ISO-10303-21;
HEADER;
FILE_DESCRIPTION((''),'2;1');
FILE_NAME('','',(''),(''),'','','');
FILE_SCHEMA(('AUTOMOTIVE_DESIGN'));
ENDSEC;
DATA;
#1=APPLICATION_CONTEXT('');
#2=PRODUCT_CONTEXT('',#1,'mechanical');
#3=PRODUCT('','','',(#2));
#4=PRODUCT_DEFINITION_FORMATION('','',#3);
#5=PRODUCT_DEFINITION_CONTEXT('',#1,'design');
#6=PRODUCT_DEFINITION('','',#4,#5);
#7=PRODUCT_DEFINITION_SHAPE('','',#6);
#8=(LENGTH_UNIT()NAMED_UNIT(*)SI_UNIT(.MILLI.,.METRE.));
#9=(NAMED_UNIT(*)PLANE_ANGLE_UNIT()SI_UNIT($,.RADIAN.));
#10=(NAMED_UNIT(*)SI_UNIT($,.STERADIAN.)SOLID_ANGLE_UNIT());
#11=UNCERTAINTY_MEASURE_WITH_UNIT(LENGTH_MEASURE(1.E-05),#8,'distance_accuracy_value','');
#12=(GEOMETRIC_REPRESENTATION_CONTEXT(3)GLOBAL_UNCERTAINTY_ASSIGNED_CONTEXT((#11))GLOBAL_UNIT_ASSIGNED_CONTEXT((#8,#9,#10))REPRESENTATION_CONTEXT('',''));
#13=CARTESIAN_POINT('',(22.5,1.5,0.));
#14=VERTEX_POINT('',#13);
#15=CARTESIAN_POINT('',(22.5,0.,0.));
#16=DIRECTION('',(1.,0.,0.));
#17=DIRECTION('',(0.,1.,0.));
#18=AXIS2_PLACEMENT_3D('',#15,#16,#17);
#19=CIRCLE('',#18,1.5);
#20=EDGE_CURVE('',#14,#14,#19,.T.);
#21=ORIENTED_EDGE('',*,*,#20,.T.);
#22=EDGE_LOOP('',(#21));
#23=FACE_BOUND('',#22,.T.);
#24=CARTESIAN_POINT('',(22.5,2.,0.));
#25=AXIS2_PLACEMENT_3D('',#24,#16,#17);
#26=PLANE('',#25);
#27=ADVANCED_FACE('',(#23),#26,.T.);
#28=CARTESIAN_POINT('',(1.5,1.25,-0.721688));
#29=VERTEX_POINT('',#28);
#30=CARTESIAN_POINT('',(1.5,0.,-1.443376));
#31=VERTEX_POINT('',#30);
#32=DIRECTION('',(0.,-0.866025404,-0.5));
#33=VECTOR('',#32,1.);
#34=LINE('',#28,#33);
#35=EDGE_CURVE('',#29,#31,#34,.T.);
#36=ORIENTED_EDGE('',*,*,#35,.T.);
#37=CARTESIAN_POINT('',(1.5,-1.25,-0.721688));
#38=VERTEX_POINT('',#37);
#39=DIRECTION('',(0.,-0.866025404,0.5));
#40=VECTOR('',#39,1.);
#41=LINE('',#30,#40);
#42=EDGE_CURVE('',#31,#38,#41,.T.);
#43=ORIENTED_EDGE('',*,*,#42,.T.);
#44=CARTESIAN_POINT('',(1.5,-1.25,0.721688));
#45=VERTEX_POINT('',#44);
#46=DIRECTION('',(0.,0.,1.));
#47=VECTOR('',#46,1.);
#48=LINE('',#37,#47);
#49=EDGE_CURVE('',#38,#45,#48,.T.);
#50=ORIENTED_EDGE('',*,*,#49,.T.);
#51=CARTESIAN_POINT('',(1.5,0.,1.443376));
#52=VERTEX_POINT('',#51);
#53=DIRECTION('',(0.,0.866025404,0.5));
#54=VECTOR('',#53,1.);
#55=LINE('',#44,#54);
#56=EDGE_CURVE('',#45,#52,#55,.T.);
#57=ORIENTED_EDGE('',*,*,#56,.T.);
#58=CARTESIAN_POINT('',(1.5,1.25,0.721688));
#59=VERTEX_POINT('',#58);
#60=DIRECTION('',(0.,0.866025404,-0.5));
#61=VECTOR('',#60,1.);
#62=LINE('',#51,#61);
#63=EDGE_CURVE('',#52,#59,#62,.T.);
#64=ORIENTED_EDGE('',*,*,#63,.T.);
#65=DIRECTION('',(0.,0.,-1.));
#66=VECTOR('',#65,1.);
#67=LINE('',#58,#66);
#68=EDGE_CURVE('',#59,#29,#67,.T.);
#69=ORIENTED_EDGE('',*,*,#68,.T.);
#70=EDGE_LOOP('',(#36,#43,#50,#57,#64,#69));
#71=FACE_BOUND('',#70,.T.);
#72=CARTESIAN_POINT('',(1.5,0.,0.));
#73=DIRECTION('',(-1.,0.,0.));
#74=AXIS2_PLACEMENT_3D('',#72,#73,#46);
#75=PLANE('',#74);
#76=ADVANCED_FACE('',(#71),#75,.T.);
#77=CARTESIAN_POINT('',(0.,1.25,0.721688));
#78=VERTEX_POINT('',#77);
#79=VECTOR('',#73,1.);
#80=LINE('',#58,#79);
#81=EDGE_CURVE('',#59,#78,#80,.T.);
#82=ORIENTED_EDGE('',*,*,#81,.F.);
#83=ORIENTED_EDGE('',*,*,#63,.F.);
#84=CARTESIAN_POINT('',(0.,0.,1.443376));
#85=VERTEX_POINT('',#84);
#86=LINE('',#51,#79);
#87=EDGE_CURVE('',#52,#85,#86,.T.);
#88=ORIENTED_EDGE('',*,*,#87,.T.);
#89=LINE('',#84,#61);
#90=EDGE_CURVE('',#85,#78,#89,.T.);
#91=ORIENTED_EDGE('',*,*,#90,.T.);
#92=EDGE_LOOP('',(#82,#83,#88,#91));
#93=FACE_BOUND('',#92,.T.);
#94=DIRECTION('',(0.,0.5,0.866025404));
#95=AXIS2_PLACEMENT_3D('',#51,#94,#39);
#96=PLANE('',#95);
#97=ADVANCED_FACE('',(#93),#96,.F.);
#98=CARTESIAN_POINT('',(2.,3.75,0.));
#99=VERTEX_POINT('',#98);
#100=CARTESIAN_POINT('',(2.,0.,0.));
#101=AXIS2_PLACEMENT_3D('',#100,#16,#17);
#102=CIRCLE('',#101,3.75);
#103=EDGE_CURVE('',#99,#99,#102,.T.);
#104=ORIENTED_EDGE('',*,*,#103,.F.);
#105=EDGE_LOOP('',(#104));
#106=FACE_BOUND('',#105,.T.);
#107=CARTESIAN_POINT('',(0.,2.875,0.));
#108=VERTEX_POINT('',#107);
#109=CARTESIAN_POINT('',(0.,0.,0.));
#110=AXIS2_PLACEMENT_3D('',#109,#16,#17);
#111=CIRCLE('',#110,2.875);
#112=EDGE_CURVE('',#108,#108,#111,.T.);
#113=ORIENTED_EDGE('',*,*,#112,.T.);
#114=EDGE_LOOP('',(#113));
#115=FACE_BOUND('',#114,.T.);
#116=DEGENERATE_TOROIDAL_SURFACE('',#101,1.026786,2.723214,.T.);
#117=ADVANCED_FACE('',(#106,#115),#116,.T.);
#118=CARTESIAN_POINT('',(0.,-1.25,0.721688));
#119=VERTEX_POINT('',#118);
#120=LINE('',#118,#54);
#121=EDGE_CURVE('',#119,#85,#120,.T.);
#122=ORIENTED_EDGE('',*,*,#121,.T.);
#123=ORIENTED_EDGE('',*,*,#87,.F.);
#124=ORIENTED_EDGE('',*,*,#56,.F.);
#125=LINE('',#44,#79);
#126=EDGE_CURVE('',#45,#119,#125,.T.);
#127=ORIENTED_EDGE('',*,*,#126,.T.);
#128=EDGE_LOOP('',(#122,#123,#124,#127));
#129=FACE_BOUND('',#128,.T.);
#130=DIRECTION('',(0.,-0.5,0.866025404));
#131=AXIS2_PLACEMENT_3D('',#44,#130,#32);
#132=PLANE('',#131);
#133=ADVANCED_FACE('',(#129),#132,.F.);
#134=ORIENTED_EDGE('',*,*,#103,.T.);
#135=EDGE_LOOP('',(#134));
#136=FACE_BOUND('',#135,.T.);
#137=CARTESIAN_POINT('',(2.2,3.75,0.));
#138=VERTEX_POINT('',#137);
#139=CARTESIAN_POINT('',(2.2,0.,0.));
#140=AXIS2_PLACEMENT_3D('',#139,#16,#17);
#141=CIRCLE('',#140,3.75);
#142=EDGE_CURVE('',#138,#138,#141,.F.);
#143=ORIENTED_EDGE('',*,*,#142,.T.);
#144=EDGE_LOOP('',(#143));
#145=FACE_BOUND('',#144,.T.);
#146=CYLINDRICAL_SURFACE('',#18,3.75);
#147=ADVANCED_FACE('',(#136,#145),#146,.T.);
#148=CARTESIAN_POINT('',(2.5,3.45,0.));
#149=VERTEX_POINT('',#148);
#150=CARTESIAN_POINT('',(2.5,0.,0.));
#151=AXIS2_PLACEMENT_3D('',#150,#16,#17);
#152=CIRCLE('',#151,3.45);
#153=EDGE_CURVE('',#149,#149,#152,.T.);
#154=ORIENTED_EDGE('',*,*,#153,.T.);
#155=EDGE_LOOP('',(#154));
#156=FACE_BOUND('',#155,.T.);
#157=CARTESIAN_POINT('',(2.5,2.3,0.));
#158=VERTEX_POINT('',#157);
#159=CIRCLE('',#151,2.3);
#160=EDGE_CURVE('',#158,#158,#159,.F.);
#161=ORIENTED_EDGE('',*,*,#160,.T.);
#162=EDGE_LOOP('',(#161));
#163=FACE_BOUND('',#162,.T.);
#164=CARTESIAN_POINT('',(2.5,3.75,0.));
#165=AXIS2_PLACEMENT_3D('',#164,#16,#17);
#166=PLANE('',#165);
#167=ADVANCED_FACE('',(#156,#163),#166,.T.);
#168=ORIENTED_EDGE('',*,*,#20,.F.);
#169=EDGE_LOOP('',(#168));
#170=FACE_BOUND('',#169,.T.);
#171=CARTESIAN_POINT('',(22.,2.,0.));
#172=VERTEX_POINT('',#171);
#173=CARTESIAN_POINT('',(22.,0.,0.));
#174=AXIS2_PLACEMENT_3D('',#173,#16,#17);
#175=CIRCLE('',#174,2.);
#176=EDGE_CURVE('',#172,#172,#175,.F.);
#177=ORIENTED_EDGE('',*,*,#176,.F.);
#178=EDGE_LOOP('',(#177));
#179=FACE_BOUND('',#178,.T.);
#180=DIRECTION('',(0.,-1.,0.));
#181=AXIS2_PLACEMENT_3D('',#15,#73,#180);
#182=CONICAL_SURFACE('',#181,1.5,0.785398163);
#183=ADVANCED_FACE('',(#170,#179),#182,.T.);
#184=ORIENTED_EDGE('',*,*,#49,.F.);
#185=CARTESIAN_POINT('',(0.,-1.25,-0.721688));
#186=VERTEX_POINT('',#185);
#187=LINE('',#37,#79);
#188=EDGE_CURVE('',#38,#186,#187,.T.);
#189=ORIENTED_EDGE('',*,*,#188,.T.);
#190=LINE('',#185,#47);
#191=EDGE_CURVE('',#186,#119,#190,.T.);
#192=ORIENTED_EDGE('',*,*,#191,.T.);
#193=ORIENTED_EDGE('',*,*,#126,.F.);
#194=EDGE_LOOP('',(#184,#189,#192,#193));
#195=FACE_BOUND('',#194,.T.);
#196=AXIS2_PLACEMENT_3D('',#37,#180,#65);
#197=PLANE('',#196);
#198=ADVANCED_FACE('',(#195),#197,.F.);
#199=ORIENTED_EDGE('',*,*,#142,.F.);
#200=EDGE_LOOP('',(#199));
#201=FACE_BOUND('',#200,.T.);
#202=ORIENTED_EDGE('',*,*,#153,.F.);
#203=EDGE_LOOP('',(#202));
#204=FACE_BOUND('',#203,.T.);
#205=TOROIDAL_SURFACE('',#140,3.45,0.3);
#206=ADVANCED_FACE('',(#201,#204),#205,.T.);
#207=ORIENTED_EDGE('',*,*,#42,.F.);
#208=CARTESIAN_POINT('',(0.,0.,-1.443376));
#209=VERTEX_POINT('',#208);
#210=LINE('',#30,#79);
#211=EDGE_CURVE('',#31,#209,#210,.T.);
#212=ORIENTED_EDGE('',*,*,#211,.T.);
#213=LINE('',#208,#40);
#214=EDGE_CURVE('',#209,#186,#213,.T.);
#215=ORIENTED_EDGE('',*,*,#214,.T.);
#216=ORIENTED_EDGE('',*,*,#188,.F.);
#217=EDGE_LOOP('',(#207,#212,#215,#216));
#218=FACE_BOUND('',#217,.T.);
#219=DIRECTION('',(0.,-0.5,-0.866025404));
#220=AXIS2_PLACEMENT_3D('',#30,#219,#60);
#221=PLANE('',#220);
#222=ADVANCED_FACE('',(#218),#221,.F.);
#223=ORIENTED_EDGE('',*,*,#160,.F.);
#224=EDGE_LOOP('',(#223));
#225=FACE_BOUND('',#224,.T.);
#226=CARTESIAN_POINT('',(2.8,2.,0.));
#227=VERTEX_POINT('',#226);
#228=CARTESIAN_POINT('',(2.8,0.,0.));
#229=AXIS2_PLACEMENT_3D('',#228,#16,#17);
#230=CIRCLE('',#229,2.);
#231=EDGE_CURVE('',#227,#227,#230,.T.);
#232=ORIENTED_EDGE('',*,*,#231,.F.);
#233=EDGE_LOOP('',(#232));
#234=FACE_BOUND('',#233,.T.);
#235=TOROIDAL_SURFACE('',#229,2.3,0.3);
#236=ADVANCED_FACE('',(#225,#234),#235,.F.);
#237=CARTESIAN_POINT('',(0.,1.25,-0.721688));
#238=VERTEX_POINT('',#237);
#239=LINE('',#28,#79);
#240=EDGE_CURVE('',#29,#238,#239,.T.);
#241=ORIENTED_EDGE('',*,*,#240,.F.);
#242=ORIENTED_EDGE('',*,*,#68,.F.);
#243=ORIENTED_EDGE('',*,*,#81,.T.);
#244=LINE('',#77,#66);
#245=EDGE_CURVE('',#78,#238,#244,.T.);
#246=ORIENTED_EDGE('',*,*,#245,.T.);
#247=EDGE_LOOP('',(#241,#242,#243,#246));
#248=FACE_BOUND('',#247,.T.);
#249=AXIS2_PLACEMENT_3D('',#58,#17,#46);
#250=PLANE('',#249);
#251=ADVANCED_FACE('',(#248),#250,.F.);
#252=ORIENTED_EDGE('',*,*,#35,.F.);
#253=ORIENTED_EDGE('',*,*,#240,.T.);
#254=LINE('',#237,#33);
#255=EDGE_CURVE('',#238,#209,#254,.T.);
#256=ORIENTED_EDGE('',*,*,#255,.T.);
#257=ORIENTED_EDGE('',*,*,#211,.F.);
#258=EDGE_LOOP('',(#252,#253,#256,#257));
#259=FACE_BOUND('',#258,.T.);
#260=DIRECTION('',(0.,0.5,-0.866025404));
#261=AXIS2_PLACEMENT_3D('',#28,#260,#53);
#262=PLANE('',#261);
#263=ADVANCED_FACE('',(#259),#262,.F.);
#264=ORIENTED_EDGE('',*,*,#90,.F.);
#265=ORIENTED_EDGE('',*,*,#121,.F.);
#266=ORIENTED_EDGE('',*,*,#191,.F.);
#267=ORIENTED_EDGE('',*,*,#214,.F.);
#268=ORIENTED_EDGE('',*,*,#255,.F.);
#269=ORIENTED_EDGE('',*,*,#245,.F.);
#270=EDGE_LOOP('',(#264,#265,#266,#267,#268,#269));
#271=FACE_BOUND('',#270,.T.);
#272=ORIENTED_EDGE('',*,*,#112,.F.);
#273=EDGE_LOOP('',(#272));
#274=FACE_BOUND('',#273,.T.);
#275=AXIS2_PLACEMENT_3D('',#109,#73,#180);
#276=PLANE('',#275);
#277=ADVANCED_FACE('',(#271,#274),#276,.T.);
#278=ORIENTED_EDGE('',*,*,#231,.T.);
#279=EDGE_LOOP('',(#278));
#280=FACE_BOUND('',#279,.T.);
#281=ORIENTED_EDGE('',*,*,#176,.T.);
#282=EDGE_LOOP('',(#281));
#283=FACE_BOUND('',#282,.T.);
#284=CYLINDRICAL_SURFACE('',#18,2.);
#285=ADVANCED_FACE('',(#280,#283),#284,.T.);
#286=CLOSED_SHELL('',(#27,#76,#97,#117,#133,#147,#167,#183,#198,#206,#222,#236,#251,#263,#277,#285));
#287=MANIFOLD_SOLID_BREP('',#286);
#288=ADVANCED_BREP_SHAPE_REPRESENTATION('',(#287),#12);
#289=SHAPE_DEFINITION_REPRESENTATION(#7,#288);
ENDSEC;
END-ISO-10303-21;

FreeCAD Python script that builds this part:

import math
import FreeCAD as App
import Part
import Sketcher
from FreeCAD import Vector
Q = App.Units.Quantity


def edges_at(feature, points):
    """Names of the edges that pass closest to the given points."""
    edges = feature.Shape.Edges
    near = lambda p: min(range(len(edges)), key=lambda i: edges[i].distToShape(Part.Vertex(*p))[0])
    return sorted({f"Edge{near(p) + 1}" for p in points})


def add_polygon(sketch, points):
    """Adds a closed chain of lines whose ends are joined by coincident constraints."""
    first, n = sketch.GeometryCount, len(points)
    for a, b in zip(points, points[1:] + points[:1]):
        sketch.addGeometry(Part.LineSegment(App.Vector(*a, 0), App.Vector(*b, 0)), False)
    for i in range(n):
        sketch.addConstraint(Sketcher.Constraint("Coincident", first + i, 2, first + (i + 1) % n, 1))

doc = App.newDocument("Part")
params = doc.addObject("Spreadsheet::Sheet", "Params")
for row, (alias, value) in enumerate([
    ("sketch1_width", "20 mm"),
    ("sketch1_height", "2 mm"),
    ("sketch1_width2", "22.5 mm"),
    ("sketch1_width3", "0.5 mm"),
    ("sketch1_height2", "1.75 mm"),
    ("revolution_angle", "360 deg"),
    ("pocket1_length", "1.5 mm"),
    ("fillet_radius", "0.3 mm"),
    ("chamfer_size", "0.5 mm"),
], start=1):
    params.set(f"A{row}", alias)
    params.set(f"B{row}", "=" + value)
    params.setAlias(f"B{row}", alias)

body = doc.addObject("PartDesign::Body", "Body")

# Sketch on XY plane
sketch1 = doc.addObject("Sketcher::SketchObject", "Sketch")
body.addObject(sketch1)
sketch1.AttachmentSupport = (doc.XY_Plane, [""])
sketch1.MapMode = "FlatFace"
sketch1.addGeometry([
    Part.LineSegment(Vector(0, 2.9, 0), Vector(0, 0, 0)),  # 0
    Part.LineSegment(Vector(0, 0, 0), Vector(22.5, 0, 0)),  # 1
    Part.LineSegment(Vector(22.5, 0, 0), Vector(22.5, 2, 0)),  # 2
    Part.LineSegment(Vector(22.5, 2, 0), Vector(2.5, 2, 0)),  # 3
    Part.LineSegment(Vector(2.5, 2, 0), Vector(2.5, 3.8, 0)),  # 4
    Part.LineSegment(Vector(2.5, 3.8, 0), Vector(2, 3.8, 0)),  # 5
    Part.ArcOfCircle(Part.Circle(Vector(2, 1, 0), Vector(0, 0, 1), 2.7), math.radians(90), math.radians(137)),  # 6
], False)
sketch1.addConstraint([
    Sketcher.Constraint("Coincident", 0, 2, 1, 1),
    Sketcher.Constraint("Coincident", 1, 2, 2, 1),
    Sketcher.Constraint("Coincident", 2, 2, 3, 1),
    Sketcher.Constraint("Coincident", 3, 2, 4, 1),
    Sketcher.Constraint("Coincident", 4, 2, 5, 1),
    Sketcher.Constraint("Tangent", 5, 2, 6, 1),
    Sketcher.Constraint("Coincident", 6, 2, 0, 1),
    Sketcher.Constraint("Vertical", 0),
    Sketcher.Constraint("Horizontal", 1),
    Sketcher.Constraint("Vertical", 2),
    Sketcher.Constraint("Horizontal", 3),
    Sketcher.Constraint("Vertical", 4),
    Sketcher.Constraint("Horizontal", 5),
    Sketcher.Constraint("Coincident", 0, 2, -1, 1),
    Sketcher.Constraint("DistanceX", 3, 2, 3, 1, Q("20 mm")),
    Sketcher.Constraint("DistanceY", 2, 1, 2, 2, Q("2 mm")),
    Sketcher.Constraint("DistanceX", 1, 1, 1, 2, Q("22.5 mm")),
    Sketcher.Constraint("DistanceX", 5, 2, 5, 1, Q("0.5 mm")),
    Sketcher.Constraint("DistanceY", 4, 1, 4, 2, Q("1.75 mm")),
    Sketcher.Constraint("DistanceY", 0, 2, 0, 1, Q("2.875 mm")),
])
sketch1.setExpression("Constraints[14]", "Params.sketch1_width")
sketch1.setExpression("Constraints[15]", "Params.sketch1_height")
sketch1.setExpression("Constraints[16]", "Params.sketch1_width2")
sketch1.setExpression("Constraints[17]", "Params.sketch1_width3")
sketch1.setExpression("Constraints[18]", "Params.sketch1_height2")
revolution = doc.addObject("PartDesign::Revolution", "Revolution")
body.addObject(revolution)
revolution.Profile = sketch1
revolution.ReferenceAxis = (sketch1, ["H_Axis"])
revolution.setExpression("Angle", "Params.revolution_angle")

# Sketch on YZ plane
sketch2 = doc.addObject("Sketcher::SketchObject", "Sketch001")
body.addObject(sketch2)
sketch2.AttachmentSupport = (doc.YZ_Plane, [""])
sketch2.MapMode = "FlatFace"
add_polygon(sketch2, [(1.2, 0.7), (1.2, -0.7), (0, -1.4), (-1.2, -0.7), (-1.2, 0.7), (0, 1.4)])  # lines 0-5
sketch2.addConstraint([
    Sketcher.Constraint("Vertical", 0),
    Sketcher.Constraint("Vertical", 3),
    Sketcher.Constraint("Symmetric", 0, 2, 3, 2, -1, 1),
    Sketcher.Constraint("Symmetric", 1, 2, 4, 2, -1, 1),
    Sketcher.Constraint("PointOnObject", 1, 2, -2),
    Sketcher.Constraint("Parallel", 2, 5),
    Sketcher.Constraint("Horizontal", 0, 2, 2, 2),
    Sketcher.Constraint("Angle", 1, Q("-150 deg")),
    Sketcher.Constraint("DistanceX", 2, 2, 0, 2, Q("2.5 mm")),
    Sketcher.Constraint("DistanceY", 0, 2, 0, 1, Q("1.443376 mm")),
])
pocket1 = doc.addObject("PartDesign::Pocket", "Pocket")
body.addObject(pocket1)
pocket1.Profile = sketch2
pocket1.setExpression("Length", "Params.pocket1_length")
pocket1.Reversed = True
doc.recompute()

fillet = doc.addObject("PartDesign::Fillet", "Fillet")
body.addObject(fillet)
fillet.Base = (pocket1, edges_at(pocket1, [(2.5, -2, 0), (2.5, -3.75, 0)]))
fillet.setExpression("Radius", "Params.fillet_radius")
doc.recompute()

chamfer = doc.addObject("PartDesign::Chamfer", "Chamfer")
body.addObject(chamfer)
chamfer.Base = (fillet, edges_at(fillet, [(22.5, -2, 0)]))
chamfer.setExpression("Size", "Params.chamfer_size")

doc.recompute()
